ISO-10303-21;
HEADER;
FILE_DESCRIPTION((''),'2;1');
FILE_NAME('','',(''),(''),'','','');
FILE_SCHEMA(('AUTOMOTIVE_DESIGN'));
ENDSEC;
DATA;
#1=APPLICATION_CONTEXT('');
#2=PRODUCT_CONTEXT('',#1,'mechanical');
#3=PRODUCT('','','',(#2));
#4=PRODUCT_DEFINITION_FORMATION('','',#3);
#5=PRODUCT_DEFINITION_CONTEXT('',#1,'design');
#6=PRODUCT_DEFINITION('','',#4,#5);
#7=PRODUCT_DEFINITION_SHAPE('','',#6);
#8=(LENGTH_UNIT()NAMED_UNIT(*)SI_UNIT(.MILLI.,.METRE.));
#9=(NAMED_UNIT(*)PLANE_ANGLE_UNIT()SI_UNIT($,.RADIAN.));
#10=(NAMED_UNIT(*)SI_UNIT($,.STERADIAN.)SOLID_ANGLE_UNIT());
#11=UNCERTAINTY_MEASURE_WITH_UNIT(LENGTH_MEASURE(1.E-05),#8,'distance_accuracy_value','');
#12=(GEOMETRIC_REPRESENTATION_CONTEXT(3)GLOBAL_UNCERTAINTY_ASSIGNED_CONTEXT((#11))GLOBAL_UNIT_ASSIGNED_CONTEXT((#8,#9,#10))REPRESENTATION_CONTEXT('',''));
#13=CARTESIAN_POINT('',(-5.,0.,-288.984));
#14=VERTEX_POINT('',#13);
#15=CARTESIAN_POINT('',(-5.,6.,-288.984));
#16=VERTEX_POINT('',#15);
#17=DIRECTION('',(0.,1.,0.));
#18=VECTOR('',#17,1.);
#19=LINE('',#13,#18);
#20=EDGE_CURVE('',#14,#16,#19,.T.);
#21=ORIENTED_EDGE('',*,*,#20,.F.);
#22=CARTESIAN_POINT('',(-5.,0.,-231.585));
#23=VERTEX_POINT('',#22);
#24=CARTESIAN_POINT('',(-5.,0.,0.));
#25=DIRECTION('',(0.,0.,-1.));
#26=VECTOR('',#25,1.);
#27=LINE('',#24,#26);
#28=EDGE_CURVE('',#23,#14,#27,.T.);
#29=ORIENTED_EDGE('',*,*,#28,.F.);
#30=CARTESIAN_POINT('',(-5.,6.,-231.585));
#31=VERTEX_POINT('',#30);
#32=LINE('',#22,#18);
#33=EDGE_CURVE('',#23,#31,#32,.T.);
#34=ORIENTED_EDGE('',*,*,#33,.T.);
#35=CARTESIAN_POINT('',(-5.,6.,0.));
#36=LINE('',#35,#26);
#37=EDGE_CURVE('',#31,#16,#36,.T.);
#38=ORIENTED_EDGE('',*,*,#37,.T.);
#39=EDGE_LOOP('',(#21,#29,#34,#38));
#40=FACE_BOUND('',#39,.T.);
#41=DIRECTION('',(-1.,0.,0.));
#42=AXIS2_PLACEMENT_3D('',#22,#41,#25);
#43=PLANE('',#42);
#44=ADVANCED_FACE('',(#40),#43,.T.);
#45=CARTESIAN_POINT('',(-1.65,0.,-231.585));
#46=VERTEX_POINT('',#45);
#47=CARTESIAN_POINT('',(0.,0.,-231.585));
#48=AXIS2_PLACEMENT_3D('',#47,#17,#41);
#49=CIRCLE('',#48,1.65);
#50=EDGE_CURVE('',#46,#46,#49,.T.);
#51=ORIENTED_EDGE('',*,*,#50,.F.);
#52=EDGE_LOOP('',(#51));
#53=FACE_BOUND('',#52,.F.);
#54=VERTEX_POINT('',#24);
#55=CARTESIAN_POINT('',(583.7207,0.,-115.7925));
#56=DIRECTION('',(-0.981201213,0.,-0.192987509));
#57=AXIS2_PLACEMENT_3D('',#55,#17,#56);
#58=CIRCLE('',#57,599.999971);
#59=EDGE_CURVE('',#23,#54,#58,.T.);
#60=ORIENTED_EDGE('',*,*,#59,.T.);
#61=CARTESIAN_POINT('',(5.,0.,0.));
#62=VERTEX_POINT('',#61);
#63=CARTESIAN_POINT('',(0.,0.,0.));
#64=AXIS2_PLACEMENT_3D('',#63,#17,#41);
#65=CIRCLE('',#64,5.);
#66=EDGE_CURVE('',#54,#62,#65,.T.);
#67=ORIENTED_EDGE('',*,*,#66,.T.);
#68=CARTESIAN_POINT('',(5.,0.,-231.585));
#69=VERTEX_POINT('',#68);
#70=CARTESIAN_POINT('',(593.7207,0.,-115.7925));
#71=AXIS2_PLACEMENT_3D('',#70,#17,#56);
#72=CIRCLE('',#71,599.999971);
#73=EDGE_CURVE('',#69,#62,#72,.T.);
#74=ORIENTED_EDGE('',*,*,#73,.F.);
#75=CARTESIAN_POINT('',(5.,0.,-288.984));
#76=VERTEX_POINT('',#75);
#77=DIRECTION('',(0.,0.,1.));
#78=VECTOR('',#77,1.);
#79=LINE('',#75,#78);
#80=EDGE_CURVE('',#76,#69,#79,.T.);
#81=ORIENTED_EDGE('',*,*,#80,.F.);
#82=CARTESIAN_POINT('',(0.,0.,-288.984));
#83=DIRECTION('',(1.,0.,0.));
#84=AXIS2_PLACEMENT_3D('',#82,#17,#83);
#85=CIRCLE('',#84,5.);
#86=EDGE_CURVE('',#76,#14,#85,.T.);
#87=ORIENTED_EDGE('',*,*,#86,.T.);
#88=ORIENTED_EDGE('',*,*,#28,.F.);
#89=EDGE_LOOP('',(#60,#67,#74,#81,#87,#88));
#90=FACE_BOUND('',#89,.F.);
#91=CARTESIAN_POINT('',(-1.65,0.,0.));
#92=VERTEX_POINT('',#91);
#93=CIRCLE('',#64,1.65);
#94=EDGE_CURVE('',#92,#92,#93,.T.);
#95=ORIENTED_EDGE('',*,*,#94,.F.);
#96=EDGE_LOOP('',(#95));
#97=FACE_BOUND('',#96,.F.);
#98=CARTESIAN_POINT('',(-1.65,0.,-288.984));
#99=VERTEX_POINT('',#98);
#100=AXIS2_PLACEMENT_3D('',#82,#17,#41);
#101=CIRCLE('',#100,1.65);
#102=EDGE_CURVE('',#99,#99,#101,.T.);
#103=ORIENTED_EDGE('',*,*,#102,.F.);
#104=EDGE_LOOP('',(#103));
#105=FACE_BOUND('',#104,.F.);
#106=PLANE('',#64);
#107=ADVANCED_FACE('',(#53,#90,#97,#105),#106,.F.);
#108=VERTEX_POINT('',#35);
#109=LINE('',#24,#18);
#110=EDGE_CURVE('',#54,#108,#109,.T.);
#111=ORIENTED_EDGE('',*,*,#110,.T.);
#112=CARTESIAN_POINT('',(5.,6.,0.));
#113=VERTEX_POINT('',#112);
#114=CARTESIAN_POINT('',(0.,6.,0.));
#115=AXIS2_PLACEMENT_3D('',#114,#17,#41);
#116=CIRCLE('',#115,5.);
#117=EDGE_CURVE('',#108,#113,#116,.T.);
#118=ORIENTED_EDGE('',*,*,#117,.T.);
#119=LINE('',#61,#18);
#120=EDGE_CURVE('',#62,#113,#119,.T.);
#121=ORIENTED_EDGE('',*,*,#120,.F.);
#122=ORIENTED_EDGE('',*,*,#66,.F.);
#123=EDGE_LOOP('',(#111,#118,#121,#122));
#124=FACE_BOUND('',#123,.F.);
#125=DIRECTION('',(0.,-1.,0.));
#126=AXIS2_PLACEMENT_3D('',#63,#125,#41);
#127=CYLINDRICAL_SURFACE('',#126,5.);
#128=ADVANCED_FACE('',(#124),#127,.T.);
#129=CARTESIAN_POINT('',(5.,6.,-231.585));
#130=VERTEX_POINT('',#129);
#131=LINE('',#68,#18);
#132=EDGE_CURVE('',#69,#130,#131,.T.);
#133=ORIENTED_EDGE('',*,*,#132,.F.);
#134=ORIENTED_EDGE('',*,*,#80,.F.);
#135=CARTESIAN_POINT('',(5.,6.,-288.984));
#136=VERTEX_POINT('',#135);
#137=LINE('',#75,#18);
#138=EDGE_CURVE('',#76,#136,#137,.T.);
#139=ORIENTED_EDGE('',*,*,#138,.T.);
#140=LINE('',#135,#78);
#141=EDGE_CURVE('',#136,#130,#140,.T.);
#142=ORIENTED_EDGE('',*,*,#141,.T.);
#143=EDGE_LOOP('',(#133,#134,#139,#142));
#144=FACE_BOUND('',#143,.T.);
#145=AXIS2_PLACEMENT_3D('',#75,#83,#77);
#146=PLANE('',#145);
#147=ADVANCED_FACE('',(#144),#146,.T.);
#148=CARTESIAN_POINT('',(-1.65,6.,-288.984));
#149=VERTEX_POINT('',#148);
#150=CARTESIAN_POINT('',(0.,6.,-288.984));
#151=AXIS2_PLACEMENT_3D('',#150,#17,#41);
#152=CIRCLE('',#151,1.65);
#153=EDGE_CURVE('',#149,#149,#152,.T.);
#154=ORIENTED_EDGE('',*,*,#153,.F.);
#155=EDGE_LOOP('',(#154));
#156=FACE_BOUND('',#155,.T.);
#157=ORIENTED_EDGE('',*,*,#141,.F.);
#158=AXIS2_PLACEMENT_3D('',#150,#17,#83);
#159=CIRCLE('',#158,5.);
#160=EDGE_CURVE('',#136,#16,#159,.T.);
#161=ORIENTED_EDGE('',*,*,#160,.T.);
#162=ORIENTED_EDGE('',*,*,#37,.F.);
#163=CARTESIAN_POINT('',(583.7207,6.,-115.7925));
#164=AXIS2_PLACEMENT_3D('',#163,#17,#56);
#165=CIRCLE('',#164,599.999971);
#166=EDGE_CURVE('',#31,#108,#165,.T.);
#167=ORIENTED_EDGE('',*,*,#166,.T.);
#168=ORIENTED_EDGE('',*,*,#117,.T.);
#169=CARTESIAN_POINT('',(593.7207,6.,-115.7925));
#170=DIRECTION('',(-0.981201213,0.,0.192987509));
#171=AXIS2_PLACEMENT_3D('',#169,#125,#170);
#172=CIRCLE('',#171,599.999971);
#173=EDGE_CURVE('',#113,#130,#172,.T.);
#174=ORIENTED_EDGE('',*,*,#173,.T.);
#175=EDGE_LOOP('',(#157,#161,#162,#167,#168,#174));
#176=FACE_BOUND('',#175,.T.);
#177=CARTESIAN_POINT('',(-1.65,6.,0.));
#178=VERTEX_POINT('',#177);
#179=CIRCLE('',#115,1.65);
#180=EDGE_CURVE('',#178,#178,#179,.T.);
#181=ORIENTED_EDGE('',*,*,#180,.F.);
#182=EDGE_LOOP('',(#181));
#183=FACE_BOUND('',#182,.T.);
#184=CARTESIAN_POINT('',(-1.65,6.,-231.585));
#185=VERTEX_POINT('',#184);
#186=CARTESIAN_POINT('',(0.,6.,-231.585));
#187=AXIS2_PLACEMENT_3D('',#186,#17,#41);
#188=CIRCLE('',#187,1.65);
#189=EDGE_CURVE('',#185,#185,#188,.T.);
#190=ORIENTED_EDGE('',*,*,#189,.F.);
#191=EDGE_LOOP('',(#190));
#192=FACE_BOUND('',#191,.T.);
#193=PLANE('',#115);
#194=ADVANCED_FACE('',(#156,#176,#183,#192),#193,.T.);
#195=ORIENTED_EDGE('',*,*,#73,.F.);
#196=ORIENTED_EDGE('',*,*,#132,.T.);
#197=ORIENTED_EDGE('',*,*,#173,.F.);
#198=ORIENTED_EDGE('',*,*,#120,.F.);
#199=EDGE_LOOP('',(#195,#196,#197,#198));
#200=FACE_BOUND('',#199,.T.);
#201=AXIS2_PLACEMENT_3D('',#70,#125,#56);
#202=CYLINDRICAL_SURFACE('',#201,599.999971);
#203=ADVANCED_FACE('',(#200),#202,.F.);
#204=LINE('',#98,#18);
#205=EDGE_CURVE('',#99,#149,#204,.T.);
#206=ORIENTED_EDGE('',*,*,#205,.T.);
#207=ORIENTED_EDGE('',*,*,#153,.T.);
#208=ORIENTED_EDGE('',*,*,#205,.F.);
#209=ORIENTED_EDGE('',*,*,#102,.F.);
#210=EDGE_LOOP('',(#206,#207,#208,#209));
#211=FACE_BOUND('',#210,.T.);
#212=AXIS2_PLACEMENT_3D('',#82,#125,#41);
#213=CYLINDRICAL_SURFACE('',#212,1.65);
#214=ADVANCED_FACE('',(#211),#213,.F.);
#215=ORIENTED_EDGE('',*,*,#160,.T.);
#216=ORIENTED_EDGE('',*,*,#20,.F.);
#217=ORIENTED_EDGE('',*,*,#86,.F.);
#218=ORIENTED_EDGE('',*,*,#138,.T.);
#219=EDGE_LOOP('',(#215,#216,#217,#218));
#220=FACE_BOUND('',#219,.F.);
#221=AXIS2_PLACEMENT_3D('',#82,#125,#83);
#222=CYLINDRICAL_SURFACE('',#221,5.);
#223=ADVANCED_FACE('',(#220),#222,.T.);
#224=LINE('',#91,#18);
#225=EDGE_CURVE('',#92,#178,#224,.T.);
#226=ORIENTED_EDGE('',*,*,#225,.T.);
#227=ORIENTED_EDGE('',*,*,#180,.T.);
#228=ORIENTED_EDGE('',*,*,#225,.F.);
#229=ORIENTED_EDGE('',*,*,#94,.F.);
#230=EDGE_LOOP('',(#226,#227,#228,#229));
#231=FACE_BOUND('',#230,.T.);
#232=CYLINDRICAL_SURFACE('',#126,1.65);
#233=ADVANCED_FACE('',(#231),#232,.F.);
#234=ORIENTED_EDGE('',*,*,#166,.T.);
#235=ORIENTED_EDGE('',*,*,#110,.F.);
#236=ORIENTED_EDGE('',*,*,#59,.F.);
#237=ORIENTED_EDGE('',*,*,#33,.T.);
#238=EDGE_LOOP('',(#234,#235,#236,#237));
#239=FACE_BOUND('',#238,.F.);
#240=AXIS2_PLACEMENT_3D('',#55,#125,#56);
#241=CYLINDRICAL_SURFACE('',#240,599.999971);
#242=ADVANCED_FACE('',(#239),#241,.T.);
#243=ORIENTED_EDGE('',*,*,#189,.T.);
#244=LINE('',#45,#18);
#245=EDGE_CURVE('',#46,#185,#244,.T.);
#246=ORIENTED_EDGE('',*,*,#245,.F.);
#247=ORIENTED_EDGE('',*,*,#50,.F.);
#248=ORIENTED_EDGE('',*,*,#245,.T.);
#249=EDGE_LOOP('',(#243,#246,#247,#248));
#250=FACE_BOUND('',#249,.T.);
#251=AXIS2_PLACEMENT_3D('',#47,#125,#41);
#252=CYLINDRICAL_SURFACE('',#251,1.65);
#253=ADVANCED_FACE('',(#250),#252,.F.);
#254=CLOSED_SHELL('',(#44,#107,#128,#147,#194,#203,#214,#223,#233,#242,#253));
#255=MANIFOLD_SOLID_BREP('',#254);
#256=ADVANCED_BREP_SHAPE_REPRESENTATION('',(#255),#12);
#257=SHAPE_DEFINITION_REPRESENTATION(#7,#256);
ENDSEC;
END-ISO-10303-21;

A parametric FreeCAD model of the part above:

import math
import FreeCAD as App
import Part
import Sketcher
from FreeCAD import Vector
Q = App.Units.Quantity

doc = App.newDocument("Part")
body = doc.addObject("PartDesign::Body", "Body")

# Sketch on XZ plane
sketch1 = doc.addObject("Sketcher::SketchObject", "Sketch")
body.addObject(sketch1)
sketch1.AttachmentSupport = (doc.XZ_Plane, [""])
sketch1.MapMode = "FlatFace"
sketch1.addGeometry(Part.LineSegment(Vector(-5, -289, 0), Vector(-5, -231.6, 0)), False)
sketch1.addGeometry(Part.ArcOfCircle(Part.Circle(Vector(583.7, -115.8, 0), Vector(0, 0, 1), 600), math.radians(169), math.radians(191)), False)
sketch1.addGeometry(Part.ArcOfCircle(Part.Circle(Vector(0, 0, 0), Vector(0, 0, 1), 5), math.radians(0), math.radians(180)), False)
sketch1.addGeometry(Part.ArcOfCircle(Part.Circle(Vector(593.7, -115.8, 0), Vector(0, 0, 1), 600), math.radians(169), math.radians(191)), False)
sketch1.addGeometry(Part.LineSegment(Vector(5, -231.6, 0), Vector(5, -289, 0)), False)
sketch1.addGeometry(Part.ArcOfCircle(Part.Circle(Vector(0, -289, 0), Vector(0, 0, 1), 5), math.radians(180), math.radians(360)), False)
sketch1.addGeometry(Part.Circle(Vector(0, -289, 0), Vector(0, 0, 1), 1.6), False)
sketch1.addGeometry(Part.Circle(Vector(0, -231.6, 0), Vector(0, 0, 1), 1.6), False)
sketch1.addGeometry(Part.Circle(Vector(0, 0, 0), Vector(0, 0, 1), 1.6), False)
sketch1.addConstraint(Sketcher.Constraint("Coincident", 0, 2, 1, 2))
sketch1.addConstraint(Sketcher.Constraint("Coincident", 1, 1, 2, 2))
sketch1.addConstraint(Sketcher.Constraint("Coincident", 2, 1, 3, 1))
sketch1.addConstraint(Sketcher.Constraint("Coincident", 3, 2, 4, 1))
sketch1.addConstraint(Sketcher.Constraint("Tangent", 4, 2, 5, 2))
sketch1.addConstraint(Sketcher.Constraint("Tangent", 5, 1, 0, 1))
sketch1.addConstraint(Sketcher.Constraint("Vertical", 0))
sketch1.addConstraint(Sketcher.Constraint("Vertical", 4))
sketch1.addConstraint(Sketcher.Constraint("Coincident", 2, 3, -1, 1))
sketch1.addConstraint(Sketcher.Constraint("Coincident", 8, 3, -1, 1))
sketch1.addConstraint(Sketcher.Constraint("Coincident", 6, 3, 5, 3))
sketch1.addConstraint(Sketcher.Constraint("Equal", 1, 3))
sketch1.addConstraint(Sketcher.Constraint("Equal", 2, 5))
sketch1.addConstraint(Sketcher.Constraint("Equal", 6, 7))
sketch1.addConstraint(Sketcher.Constraint("Equal", 7, 8))
sketch1.addConstraint(Sketcher.Constraint("Symmetric", 0, 2, 3, 2, -2))
sketch1.addConstraint(Sketcher.Constraint("PointOnObject", 7, 3, -2))
sketch1.addConstraint(Sketcher.Constraint("PointOnObject", 1, 1, -1))
sketch1.addConstraint(Sketcher.Constraint("PointOnObject", 2, 1, -1))
sketch1.addConstraint(Sketcher.Constraint("Horizontal", 7, 3, 0, 2))
sketch1.addConstraint(Sketcher.Constraint("Radius", 1, Q("600 mm")))
sketch1.addConstraint(Sketcher.Constraint("Radius", 2, Q("5 mm")))
sketch1.addConstraint(Sketcher.Constraint("Diameter", 6, Q("3.3 mm")))
sketch1.addConstraint(Sketcher.Constraint("DistanceY", 5, 3, -1, 1, Q("288.984 mm")))
sketch1.addConstraint(Sketcher.Constraint("DistanceY", 7, 3, -1, 1, Q("231.585 mm")))
pad1 = doc.addObject("PartDesign::Pad", "Pad")
body.addObject(pad1)
pad1.Profile = sketch1
pad1.Length = 6
pad1.Reversed = True

doc.recompute()
